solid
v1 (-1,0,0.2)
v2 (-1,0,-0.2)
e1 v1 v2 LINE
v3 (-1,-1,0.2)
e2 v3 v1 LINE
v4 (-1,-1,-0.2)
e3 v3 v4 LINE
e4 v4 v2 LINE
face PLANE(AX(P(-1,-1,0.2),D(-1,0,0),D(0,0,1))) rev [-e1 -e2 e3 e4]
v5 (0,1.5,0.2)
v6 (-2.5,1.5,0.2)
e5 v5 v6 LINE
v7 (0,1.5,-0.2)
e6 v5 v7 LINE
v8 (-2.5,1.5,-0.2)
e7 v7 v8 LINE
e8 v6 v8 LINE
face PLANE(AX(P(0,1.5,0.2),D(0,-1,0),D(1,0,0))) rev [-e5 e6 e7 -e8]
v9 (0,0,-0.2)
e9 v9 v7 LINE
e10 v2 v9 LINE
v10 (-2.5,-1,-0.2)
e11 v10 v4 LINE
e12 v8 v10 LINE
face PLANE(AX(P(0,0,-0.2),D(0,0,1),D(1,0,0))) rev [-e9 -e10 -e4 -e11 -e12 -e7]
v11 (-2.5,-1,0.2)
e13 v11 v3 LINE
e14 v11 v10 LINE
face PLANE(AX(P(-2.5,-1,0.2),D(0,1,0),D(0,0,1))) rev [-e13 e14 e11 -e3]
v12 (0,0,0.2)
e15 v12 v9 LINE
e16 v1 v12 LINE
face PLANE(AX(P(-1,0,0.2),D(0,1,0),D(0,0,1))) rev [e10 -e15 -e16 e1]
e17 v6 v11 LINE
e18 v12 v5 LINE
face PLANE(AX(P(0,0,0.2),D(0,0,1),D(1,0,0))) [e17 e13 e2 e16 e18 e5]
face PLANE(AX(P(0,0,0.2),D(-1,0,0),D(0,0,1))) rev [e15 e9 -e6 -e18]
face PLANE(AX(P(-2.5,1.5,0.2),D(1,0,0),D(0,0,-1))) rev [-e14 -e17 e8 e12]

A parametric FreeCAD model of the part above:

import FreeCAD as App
import Part
import Sketcher


def add_polygon(sketch, points):
    """Adds a closed chain of lines whose ends are joined by coincident constraints."""
    first, n = sketch.GeometryCount, len(points)
    for a, b in zip(points, points[1:] + points[:1]):
        sketch.addGeometry(Part.LineSegment(App.Vector(*a, 0), App.Vector(*b, 0)), False)
    for i in range(n):
        sketch.addConstraint(Sketcher.Constraint("Coincident", first + i, 2, first + (i + 1) % n, 1))

doc = App.newDocument("Part")
body = doc.addObject("PartDesign::Body", "Body")

# Sketch on XY plane
sketch1 = doc.addObject("Sketcher::SketchObject", "Sketch")
body.addObject(sketch1)
sketch1.AttachmentSupport = (doc.XY_Plane, [""])
sketch1.MapMode = "FlatFace"
add_polygon(sketch1, [(0, 0), (0, 1.5), (-2.5, 1.5), (-2.5, -1), (-1, -1), (-1, 0)])  # lines 0-5
sketch1.addConstraint([
    Sketcher.Constraint("Vertical", 0),
    Sketcher.Constraint("Horizontal", 1),
    Sketcher.Constraint("Vertical", 2),
    Sketcher.Constraint("Horizontal", 3),
    Sketcher.Constraint("Vertical", 4),
    Sketcher.Constraint("Horizontal", 5),
    Sketcher.Constraint("Coincident", 5, 2, -1, 1),
    Sketcher.Constraint("Equal", 3, 0),
    Sketcher.Constraint("Equal", 1, 2),
    Sketcher.Constraint("DistanceX", 5, 1, 5, 2, 1.0),
    Sketcher.Constraint("DistanceX", 1, 2, 1, 1, 2.5),
])
pad1 = doc.addObject("PartDesign::Pad", "Pad")
body.addObject(pad1)
pad1.Profile = sketch1
pad1.Length = 0.4
pad1.Midplane = True

doc.recompute()
